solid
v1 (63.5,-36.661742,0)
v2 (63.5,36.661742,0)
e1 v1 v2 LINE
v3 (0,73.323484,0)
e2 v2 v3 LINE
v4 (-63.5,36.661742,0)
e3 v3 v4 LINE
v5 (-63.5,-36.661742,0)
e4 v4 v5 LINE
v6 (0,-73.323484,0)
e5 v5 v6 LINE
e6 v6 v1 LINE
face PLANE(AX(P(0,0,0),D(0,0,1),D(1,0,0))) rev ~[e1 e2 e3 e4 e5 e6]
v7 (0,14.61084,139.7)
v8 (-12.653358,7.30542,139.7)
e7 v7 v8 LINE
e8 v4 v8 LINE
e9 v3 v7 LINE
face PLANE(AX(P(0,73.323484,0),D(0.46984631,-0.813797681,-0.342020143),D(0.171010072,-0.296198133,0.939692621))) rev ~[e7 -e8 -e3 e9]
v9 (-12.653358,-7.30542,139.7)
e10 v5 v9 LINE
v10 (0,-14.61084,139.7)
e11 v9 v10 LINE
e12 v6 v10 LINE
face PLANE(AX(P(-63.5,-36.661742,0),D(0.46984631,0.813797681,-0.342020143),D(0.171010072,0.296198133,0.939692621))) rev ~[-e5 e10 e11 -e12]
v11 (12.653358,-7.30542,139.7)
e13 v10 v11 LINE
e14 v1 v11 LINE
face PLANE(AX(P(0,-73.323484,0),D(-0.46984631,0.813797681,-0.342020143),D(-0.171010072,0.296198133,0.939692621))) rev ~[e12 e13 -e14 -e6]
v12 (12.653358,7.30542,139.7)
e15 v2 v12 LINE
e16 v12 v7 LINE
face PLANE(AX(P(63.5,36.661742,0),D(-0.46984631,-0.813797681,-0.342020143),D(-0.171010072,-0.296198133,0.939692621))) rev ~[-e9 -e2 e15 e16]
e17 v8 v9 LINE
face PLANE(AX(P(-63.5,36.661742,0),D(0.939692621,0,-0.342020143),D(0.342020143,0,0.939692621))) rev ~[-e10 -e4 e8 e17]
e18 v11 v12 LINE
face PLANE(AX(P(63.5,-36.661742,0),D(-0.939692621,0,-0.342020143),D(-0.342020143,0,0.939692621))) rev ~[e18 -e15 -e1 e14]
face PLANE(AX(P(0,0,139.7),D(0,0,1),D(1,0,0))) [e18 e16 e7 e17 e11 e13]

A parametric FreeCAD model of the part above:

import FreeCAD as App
import Part
import Sketcher
Q = App.Units.Quantity


def add_polygon(sketch, points):
    """Adds a closed chain of lines whose ends are joined by coincident constraints."""
    first, n = sketch.GeometryCount, len(points)
    for a, b in zip(points, points[1:] + points[:1]):
        sketch.addGeometry(Part.LineSegment(App.Vector(*a, 0), App.Vector(*b, 0)), False)
    for i in range(n):
        sketch.addConstraint(Sketcher.Constraint("Coincident", first + i, 2, first + (i + 1) % n, 1))

doc = App.newDocument("Part")
params = doc.addObject("Spreadsheet::Sheet", "Params")
for row, (alias, value) in enumerate([
    ("pad1_length", "5.5 in"),
    ("pad1_taper", "-20 deg"),
], start=1):
    params.set(f"A{row}", alias)
    params.set(f"B{row}", "=" + value)
    params.setAlias(f"B{row}", alias)

body = doc.addObject("PartDesign::Body", "Body")

# Sketch on XY plane
sketch1 = body.newObject("Sketcher::SketchObject", "Sketch")
sketch1.AttachmentSupport = (doc.getObject("XY_Plane"), [""])
sketch1.MapMode = "FlatFace"
add_polygon(sketch1, [(63.5, -36.661742), (63.5, 36.661742), (0, 73.323484), (-63.5, 36.661742), (-63.5, -36.661742), (0, -73.323484)])  # lines 0-5
sketch1.addConstraint([
    Sketcher.Constraint("Vertical", 0),
    Sketcher.Constraint("Vertical", 3),
    Sketcher.Constraint("Symmetric", 0, 2, 3, 2, -1, 1),
    Sketcher.Constraint("Symmetric", 1, 2, 4, 2, -1, 1),
    Sketcher.Constraint("PointOnObject", 1, 2, -2),
    Sketcher.Constraint("Parallel", 2, 5),
    Sketcher.Constraint("Horizontal", 0, 2, 2, 2),
    Sketcher.Constraint("Angle", 1, Q("150 deg")),
    Sketcher.Constraint("DistanceX", 2, 2, 0, 2, Q("5 in")),
    Sketcher.Constraint("DistanceY", 0, 1, 0, 2, 73.323484),
])
pad1 = body.newObject("PartDesign::Pad", "Pad")
pad1.Profile = sketch1
pad1.setExpression("Length", "Params.pad1_length")
pad1.setExpression("TaperAngle", "Params.pad1_taper")

doc.recompute()
